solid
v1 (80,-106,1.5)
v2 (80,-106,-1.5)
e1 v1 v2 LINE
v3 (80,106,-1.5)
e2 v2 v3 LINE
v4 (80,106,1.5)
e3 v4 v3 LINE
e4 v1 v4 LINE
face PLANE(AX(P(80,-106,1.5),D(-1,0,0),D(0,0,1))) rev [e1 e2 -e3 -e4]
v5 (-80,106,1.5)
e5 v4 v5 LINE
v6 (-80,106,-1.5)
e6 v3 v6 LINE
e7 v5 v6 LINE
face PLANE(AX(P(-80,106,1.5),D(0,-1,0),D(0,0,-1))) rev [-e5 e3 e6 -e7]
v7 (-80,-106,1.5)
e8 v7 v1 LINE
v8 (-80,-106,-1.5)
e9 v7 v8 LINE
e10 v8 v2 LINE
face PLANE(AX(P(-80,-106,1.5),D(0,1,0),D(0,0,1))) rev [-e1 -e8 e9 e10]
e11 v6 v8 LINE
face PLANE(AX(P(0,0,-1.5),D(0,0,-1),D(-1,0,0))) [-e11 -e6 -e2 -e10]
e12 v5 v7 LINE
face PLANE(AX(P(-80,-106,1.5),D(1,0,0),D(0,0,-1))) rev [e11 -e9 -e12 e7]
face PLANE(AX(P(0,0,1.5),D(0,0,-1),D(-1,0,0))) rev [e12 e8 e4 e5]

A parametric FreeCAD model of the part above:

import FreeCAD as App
import Part
import Sketcher
from FreeCAD import Vector
Q = App.Units.Quantity

doc = App.newDocument("Part")
body = doc.addObject("PartDesign::Body", "Body")

sketch1 = body.newObject("Sketcher::SketchObject", "Sketch")
sketch1.AttachmentSupport = (doc.getObject("XY_Plane"), [""])
sketch1.MapMode = "FlatFace"
sketch1.addGeometry(Part.LineSegment(Vector(-80, 106, 0), Vector(-80, -106, 0)), False)
sketch1.addGeometry(Part.LineSegment(Vector(-80, -106, 0), Vector(80, -106, 0)), False)
sketch1.addGeometry(Part.LineSegment(Vector(80, -106, 0), Vector(80, 106, 0)), False)
sketch1.addGeometry(Part.LineSegment(Vector(80, 106, 0), Vector(-80, 106, 0)), False)
sketch1.addConstraint(Sketcher.Constraint("Coincident", 0, 2, 1, 1))
sketch1.addConstraint(Sketcher.Constraint("Coincident", 1, 2, 2, 1))
sketch1.addConstraint(Sketcher.Constraint("Coincident", 2, 2, 3, 1))
sketch1.addConstraint(Sketcher.Constraint("Coincident", 3, 2, 0, 1))
sketch1.addConstraint(Sketcher.Constraint("Vertical", 0))
sketch1.addConstraint(Sketcher.Constraint("Horizontal", 1))
sketch1.addConstraint(Sketcher.Constraint("Vertical", 2))
sketch1.addConstraint(Sketcher.Constraint("Horizontal", 3))
sketch1.addConstraint(Sketcher.Constraint("Symmetric", 0, 2, 2, 2, -1, 1))
sketch1.addConstraint(Sketcher.Constraint("DistanceX", 1, 1, 1, 2, Q("160 mm")))
sketch1.addConstraint(Sketcher.Constraint("DistanceY", 0, 2, 0, 1, Q("212 mm")))
pad1 = body.newObject("PartDesign::Pad", "Pad")
pad1.Profile = sketch1
pad1.Length = 3
pad1.Midplane = True

doc.recompute()
